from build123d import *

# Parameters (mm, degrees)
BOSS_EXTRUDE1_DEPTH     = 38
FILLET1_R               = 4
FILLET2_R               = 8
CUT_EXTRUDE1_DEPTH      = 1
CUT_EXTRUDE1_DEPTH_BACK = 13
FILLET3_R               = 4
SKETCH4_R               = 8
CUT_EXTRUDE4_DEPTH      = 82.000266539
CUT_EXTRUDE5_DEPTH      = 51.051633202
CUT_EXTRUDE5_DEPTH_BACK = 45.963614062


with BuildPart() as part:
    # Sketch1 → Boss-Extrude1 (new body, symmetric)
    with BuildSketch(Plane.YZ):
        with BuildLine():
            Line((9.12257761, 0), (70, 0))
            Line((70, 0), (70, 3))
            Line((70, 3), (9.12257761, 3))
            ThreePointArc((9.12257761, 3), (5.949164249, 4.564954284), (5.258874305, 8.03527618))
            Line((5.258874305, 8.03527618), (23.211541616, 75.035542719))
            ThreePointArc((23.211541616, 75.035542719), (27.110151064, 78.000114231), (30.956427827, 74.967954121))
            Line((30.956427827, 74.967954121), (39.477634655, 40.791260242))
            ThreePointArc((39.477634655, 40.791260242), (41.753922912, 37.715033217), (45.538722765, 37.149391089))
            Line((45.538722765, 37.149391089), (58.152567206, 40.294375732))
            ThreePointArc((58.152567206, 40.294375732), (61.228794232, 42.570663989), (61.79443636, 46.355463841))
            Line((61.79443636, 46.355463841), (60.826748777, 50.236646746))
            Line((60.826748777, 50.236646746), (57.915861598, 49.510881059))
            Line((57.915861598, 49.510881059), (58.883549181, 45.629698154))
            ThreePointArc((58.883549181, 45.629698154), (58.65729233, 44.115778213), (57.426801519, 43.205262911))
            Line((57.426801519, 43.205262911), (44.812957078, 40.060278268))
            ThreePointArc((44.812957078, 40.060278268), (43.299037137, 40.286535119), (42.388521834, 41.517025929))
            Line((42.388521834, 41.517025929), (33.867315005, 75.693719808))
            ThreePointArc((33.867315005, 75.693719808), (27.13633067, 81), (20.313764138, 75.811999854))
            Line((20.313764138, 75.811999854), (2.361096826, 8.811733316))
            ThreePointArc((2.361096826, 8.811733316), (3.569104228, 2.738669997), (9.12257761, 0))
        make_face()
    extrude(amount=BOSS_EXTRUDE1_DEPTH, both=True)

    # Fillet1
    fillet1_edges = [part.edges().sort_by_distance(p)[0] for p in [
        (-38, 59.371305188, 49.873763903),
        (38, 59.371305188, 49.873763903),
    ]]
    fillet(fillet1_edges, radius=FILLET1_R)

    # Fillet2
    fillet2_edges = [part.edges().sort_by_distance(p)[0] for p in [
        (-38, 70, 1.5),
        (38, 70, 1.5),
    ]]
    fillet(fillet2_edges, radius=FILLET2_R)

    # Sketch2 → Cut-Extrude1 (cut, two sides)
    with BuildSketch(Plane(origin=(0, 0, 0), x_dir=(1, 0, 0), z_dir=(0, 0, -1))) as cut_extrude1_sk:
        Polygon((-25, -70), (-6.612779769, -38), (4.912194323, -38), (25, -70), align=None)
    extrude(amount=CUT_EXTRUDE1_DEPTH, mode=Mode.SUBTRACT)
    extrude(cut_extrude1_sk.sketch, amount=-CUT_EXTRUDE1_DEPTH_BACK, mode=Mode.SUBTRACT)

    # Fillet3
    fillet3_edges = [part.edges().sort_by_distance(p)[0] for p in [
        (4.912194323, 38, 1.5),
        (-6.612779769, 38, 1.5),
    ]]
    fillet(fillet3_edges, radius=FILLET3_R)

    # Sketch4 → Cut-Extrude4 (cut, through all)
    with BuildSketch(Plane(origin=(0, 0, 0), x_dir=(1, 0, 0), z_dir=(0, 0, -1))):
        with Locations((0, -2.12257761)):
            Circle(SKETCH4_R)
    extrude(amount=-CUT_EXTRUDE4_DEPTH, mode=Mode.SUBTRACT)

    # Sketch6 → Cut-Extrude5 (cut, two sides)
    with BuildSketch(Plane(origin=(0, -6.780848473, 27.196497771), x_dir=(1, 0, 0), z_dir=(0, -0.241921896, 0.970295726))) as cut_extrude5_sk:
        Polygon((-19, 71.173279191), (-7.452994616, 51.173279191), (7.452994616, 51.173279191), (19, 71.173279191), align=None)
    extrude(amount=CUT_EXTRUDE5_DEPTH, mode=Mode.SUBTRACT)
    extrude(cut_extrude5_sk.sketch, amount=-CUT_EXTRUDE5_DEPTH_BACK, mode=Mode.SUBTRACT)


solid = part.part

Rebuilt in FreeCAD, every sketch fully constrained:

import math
import FreeCAD as App
import Part
import Sketcher
from FreeCAD import Vector
Q = App.Units.Quantity


def edges_at(feature, points):
    """Names of the edges that pass closest to the given points."""
    edges = feature.Shape.Edges
    near = lambda p: min(range(len(edges)), key=lambda i: edges[i].distToShape(Part.Vertex(*p))[0])
    return sorted({f"Edge{near(p) + 1}" for p in points})


def add_polygon(sketch, points):
    """Adds a closed chain of lines whose ends are joined by coincident constraints."""
    first, n = sketch.GeometryCount, len(points)
    for a, b in zip(points, points[1:] + points[:1]):
        sketch.addGeometry(Part.LineSegment(App.Vector(*a, 0), App.Vector(*b, 0)), False)
    for i in range(n):
        sketch.addConstraint(Sketcher.Constraint("Coincident", first + i, 2, first + (i + 1) % n, 1))

doc = App.newDocument("Part")
params = doc.addObject("Spreadsheet::Sheet", "Params")
for row, (alias, value) in enumerate([
    ("sketch1_radius", "4 mm"),
    ("sketch1_radius2", "5 mm"),
    ("sketch1_radius3", "2 mm"),
    ("sketch1_length", "13 mm"),
    ("sketch1_length2", "4 mm"),
    ("pad1_length", "76 mm"),
    ("fillet_radius", "4 mm"),
    ("fillet2_radius", "8 mm"),
    ("sketch2_width", "50 mm"),
    ("pocket1_length", "1 mm"),
    ("pocket1_length2", "13 mm"),
    ("fillet3_radius", "4 mm"),
    ("sketch3_diameter", "16 mm"),
    ("sketch4_width", "38 mm"),
], start=1):
    params.set(f"A{row}", alias)
    params.set(f"B{row}", "=" + value)
    params.setAlias(f"B{row}", alias)

body = doc.addObject("PartDesign::Body", "Body")

# Sketch on YZ plane
sketch1 = body.newObject("Sketcher::SketchObject", "Sketch")
sketch1.AttachmentSupport = (doc.getObject("YZ_Plane"), [""])
sketch1.MapMode = "FlatFace"
sketch1.addGeometry([
    Part.LineSegment(Vector(9.122578, 0, 0), Vector(70, 0, 0)),  # 0
    Part.LineSegment(Vector(70, 0, 0), Vector(70, 3, 0)),  # 1
    Part.LineSegment(Vector(70, 3, 0), Vector(9.122578, 3, 0)),  # 2
    Part.ArcOfCircle(Part.Circle(Vector(9.122578, 7, 0), Vector(0, 0, 1), 4), math.radians(165), math.radians(270)),  # 3
    Part.LineSegment(Vector(5.258874, 8.035276, 0), Vector(23.211542, 75.035543, 0)),  # 4
    Part.ArcOfCircle(Part.Circle(Vector(27.075245, 74.000267, 0), Vector(0, 0, 1), 4), math.radians(14), math.radians(165)),  # 5
    Part.LineSegment(Vector(30.956428, 74.967954, 0), Vector(39.477635, 40.79126, 0)),  # 6
    Part.ArcOfCircle(Part.Circle(Vector(44.329113, 42.00087, 0), Vector(0, 0, 1), 5), math.radians(-166), math.radians(-76)),  # 7
    Part.LineSegment(Vector(45.538723, 37.149391, 0), Vector(58.152567, 40.294376, 0)),  # 8
    Part.ArcOfCircle(Part.Circle(Vector(56.942958, 45.145854, 0), Vector(0, 0, 1), 5), math.radians(-76), math.radians(14)),  # 9
    Part.LineSegment(Vector(61.794436, 46.355464, 0), Vector(60.826749, 50.236647, 0)),  # 10
    Part.LineSegment(Vector(60.826749, 50.236647, 0), Vector(57.915862, 49.510881, 0)),  # 11
    Part.LineSegment(Vector(57.915862, 49.510881, 0), Vector(58.883549, 45.629698, 0)),  # 12
    Part.ArcOfCircle(Part.Circle(Vector(56.942958, 45.145854, 0), Vector(0, 0, 1), 2), math.radians(-76), math.radians(14)),  # 13
    Part.LineSegment(Vector(57.426802, 43.205263, 0), Vector(44.812957, 40.060278, 0)),  # 14
    Part.ArcOfCircle(Part.Circle(Vector(44.329113, 42.00087, 0), Vector(0, 0, 1), 2), math.radians(-166), math.radians(-76)),  # 15
    Part.LineSegment(Vector(42.388522, 41.517026, 0), Vector(33.867315, 75.69372, 0)),  # 16
    Part.ArcOfCircle(Part.Circle(Vector(27.075245, 74.000267, 0), Vector(0, 0, 1), 7), math.radians(14), math.radians(165)),  # 17
    Part.LineSegment(Vector(20.313764, 75.812, 0), Vector(2.361097, 8.811733, 0)),  # 18
    Part.ArcOfCircle(Part.Circle(Vector(9.122578, 7, 0), Vector(0, 0, 1), 7), math.radians(165), math.radians(270)),  # 19
], False)
sketch1.addConstraint([
    Sketcher.Constraint("Coincident", 0, 2, 1, 1),
    Sketcher.Constraint("Coincident", 1, 2, 2, 1),
    Sketcher.Constraint("Tangent", 2, 2, 3, 2),
    Sketcher.Constraint("Tangent", 3, 1, 4, 1),
    Sketcher.Constraint("Tangent", 4, 2, 5, 2),
    Sketcher.Constraint("Tangent", 5, 1, 6, 1),
    Sketcher.Constraint("Tangent", 6, 2, 7, 1),
    Sketcher.Constraint("Tangent", 7, 2, 8, 1),
    Sketcher.Constraint("Tangent", 8, 2, 9, 1),
    Sketcher.Constraint("Tangent", 9, 2, 10, 1),
    Sketcher.Constraint("Coincident", 10, 2, 11, 1),
    Sketcher.Constraint("Coincident", 11, 2, 12, 1),
    Sketcher.Constraint("Tangent", 12, 2, 13, 2),
    Sketcher.Constraint("Tangent", 13, 1, 14, 1),
    Sketcher.Constraint("Tangent", 14, 2, 15, 2),
    Sketcher.Constraint("Tangent", 15, 1, 16, 1),
    Sketcher.Constraint("Tangent", 16, 2, 17, 1),
    Sketcher.Constraint("Tangent", 17, 2, 18, 1),
    Sketcher.Constraint("Tangent", 18, 2, 19, 1),
    Sketcher.Constraint("Tangent", 19, 2, 0, 1),
    Sketcher.Constraint("Horizontal", 0),
    Sketcher.Constraint("Vertical", 1),
    Sketcher.Constraint("Horizontal", 2),
    Sketcher.Constraint("Coincident", 13, 3, 9, 3),
    Sketcher.Constraint("Coincident", 15, 3, 7, 3),
    Sketcher.Constraint("Coincident", 17, 3, 5, 3),
    Sketcher.Constraint("Coincident", 19, 3, 3, 3),
    Sketcher.Constraint("Equal", 3, 5),
    Sketcher.Constraint("Equal", 7, 9),
    Sketcher.Constraint("Equal", 13, 15),
    Sketcher.Constraint("Equal", 17, 19),
    Sketcher.Constraint("PointOnObject", 0, 2, -1),
    Sketcher.Constraint("Perpendicular", 6, 8),
    Sketcher.Constraint("Perpendicular", 8, 10),
    Sketcher.Constraint("Perpendicular", 10, 11),
    Sketcher.Constraint("Perpendicular", 11, 12),
    Sketcher.Constraint("Perpendicular", 14, 16),
    Sketcher.Constraint("Radius", 3, Q("4 mm")),
    Sketcher.Constraint("Radius", 7, Q("5 mm")),
    Sketcher.Constraint("Radius", 13, Q("2 mm")),
    Sketcher.Constraint("Angle", 4, Q("75 deg")),
    Sketcher.Constraint("Angle", 6, Q("-76 deg")),
    Sketcher.Constraint("Distance", 8, Q("13 mm")),
    Sketcher.Constraint("Distance", 10, Q("4 mm")),
    Sketcher.Constraint("DistanceX", -1, 1, 0, 2, Q("70 mm")),
    Sketcher.Constraint("DistanceY", -1, 1, 17, 2, Q("75.812 mm")),
    Sketcher.Constraint("DistanceY", -1, 1, 12, 2, Q("45.629698 mm")),
    Sketcher.Constraint("DistanceX", -1, 1, 13, 1, Q("57.426802 mm")),
])
sketch1.setExpression("Constraints[37]", "Params.sketch1_radius")
sketch1.setExpression("Constraints[38]", "Params.sketch1_radius2")
sketch1.setExpression("Constraints[39]", "Params.sketch1_radius3")
sketch1.setExpression("Constraints[42]", "Params.sketch1_length")
sketch1.setExpression("Constraints[43]", "Params.sketch1_length2")
pad1 = body.newObject("PartDesign::Pad", "Pad")
pad1.Profile = sketch1
pad1.setExpression("Length", "Params.pad1_length")
pad1.Midplane = True
doc.recompute()

fillet = body.newObject("PartDesign::Fillet", "Fillet")
fillet.Base = (pad1, edges_at(pad1, [(-38, 59.371, 49.874), (38, 59.371, 49.874)]))
fillet.setExpression("Radius", "Params.fillet_radius")
doc.recompute()

fillet2 = body.newObject("PartDesign::Fillet", "Fillet001")
fillet2.Base = (fillet, edges_at(fillet, [(-38, 70, 1.5), (38, 70, 1.5)]))
fillet2.setExpression("Radius", "Params.fillet2_radius")

# Sketch on XY plane
sketch2 = body.newObject("Sketcher::SketchObject", "Sketch001")
sketch2.AttachmentSupport = (doc.getObject("XY_Plane"), [""])
sketch2.MapMode = "FlatFace"
add_polygon(sketch2, [(-6.61278, 38), (-25, 70), (25, 70), (4.912194, 38)])  # lines 0-3
sketch2.addConstraint([
    Sketcher.Constraint("Horizontal", 1),
    Sketcher.Constraint("Horizontal", 3),
    Sketcher.Constraint("DistanceX", 1, 1, 1, 2, Q("50 mm")),
    Sketcher.Constraint("DistanceX", 0, 2, -1, 1, Q("25 mm")),
    Sketcher.Constraint("DistanceY", -1, 1, 0, 2, Q("70 mm")),
    Sketcher.Constraint("DistanceY", -1, 1, 2, 2, Q("38 mm")),
    Sketcher.Constraint("Distance", 0, Q("36.906502 mm")),
    Sketcher.Constraint("DistanceX", 3, 2, 3, 1, Q("11.524974 mm")),
])
sketch2.setExpression("Constraints[6]", "Params.sketch2_width")
pocket1 = body.newObject("PartDesign::Pocket", "Pocket")
pocket1.Profile = sketch2
pocket1.Type = "TwoLengths"
pocket1.setExpression("Length", "Params.pocket1_length")
pocket1.setExpression("Length2", "Params.pocket1_length2")
doc.recompute()

fillet3 = body.newObject("PartDesign::Fillet", "Fillet002")
fillet3.Base = (pocket1, edges_at(pocket1, [(4.912, 38, 1.5), (-6.613, 38, 1.5)]))
fillet3.setExpression("Radius", "Params.fillet3_radius")

# Sketch on XY plane
sketch3 = body.newObject("Sketcher::SketchObject", "Sketch002")
sketch3.AttachmentSupport = (doc.getObject("XY_Plane"), [""])
sketch3.MapMode = "FlatFace"
sketch3.addGeometry(Part.Circle(Vector(0, 2.122578, 0), Vector(0, 0, 1), 8), False)
sketch3.addConstraint([
    Sketcher.Constraint("PointOnObject", 0, 3, -2),
    Sketcher.Constraint("Diameter", 0, Q("16 mm")),
    Sketcher.Constraint("DistanceY", -1, 1, 0, 3, Q("2.122578 mm")),
])
sketch3.setExpression("Constraints[1]", "Params.sketch3_diameter")
pocket2 = body.newObject("PartDesign::Pocket", "Pocket001")
pocket2.Profile = sketch3
pocket2.Type = "ThroughAll"
pocket2.Reversed = True

# Sketch on an angled plane
sketch4 = body.newObject("Sketcher::SketchObject", "Sketch003")
sketch4.Placement = App.Placement(Vector(0, -6.780848, 27.196498), App.Rotation(Vector(1, 0, 0), Vector(0, 0.970295726, 0.241921896), Vector(0, -0.241921896, 0.970295726), "ZXY"))
add_polygon(sketch4, [(-19, 71.173279), (-7.452995, 51.173279), (7.452995, 51.173279), (19, 71.173279)])  # lines 0-3
sketch4.addConstraint([
    Sketcher.Constraint("Horizontal", 1),
    Sketcher.Constraint("Horizontal", 3),
    Sketcher.Constraint("Equal", 0, 2),
    Sketcher.Constraint("DistanceX", 3, 2, 3, 1, Q("38 mm")),
    Sketcher.Constraint("Angle", 0, Q("-60 deg")),
    Sketcher.Constraint("DistanceX", -1, 1, 2, 2, Q("19 mm")),
    Sketcher.Constraint("DistanceY", 1, 2, 2, 2, Q("20 mm")),
    Sketcher.Constraint("DistanceY", -1, 1, 0, 2, Q("51.173279 mm")),
])
sketch4.setExpression("Constraints[7]", "Params.sketch4_width")
pocket3 = body.newObject("PartDesign::Pocket", "Pocket002")
pocket3.Profile = sketch4
pocket3.Type = "ThroughAll"
pocket3.Midplane = True

doc.recompute()
